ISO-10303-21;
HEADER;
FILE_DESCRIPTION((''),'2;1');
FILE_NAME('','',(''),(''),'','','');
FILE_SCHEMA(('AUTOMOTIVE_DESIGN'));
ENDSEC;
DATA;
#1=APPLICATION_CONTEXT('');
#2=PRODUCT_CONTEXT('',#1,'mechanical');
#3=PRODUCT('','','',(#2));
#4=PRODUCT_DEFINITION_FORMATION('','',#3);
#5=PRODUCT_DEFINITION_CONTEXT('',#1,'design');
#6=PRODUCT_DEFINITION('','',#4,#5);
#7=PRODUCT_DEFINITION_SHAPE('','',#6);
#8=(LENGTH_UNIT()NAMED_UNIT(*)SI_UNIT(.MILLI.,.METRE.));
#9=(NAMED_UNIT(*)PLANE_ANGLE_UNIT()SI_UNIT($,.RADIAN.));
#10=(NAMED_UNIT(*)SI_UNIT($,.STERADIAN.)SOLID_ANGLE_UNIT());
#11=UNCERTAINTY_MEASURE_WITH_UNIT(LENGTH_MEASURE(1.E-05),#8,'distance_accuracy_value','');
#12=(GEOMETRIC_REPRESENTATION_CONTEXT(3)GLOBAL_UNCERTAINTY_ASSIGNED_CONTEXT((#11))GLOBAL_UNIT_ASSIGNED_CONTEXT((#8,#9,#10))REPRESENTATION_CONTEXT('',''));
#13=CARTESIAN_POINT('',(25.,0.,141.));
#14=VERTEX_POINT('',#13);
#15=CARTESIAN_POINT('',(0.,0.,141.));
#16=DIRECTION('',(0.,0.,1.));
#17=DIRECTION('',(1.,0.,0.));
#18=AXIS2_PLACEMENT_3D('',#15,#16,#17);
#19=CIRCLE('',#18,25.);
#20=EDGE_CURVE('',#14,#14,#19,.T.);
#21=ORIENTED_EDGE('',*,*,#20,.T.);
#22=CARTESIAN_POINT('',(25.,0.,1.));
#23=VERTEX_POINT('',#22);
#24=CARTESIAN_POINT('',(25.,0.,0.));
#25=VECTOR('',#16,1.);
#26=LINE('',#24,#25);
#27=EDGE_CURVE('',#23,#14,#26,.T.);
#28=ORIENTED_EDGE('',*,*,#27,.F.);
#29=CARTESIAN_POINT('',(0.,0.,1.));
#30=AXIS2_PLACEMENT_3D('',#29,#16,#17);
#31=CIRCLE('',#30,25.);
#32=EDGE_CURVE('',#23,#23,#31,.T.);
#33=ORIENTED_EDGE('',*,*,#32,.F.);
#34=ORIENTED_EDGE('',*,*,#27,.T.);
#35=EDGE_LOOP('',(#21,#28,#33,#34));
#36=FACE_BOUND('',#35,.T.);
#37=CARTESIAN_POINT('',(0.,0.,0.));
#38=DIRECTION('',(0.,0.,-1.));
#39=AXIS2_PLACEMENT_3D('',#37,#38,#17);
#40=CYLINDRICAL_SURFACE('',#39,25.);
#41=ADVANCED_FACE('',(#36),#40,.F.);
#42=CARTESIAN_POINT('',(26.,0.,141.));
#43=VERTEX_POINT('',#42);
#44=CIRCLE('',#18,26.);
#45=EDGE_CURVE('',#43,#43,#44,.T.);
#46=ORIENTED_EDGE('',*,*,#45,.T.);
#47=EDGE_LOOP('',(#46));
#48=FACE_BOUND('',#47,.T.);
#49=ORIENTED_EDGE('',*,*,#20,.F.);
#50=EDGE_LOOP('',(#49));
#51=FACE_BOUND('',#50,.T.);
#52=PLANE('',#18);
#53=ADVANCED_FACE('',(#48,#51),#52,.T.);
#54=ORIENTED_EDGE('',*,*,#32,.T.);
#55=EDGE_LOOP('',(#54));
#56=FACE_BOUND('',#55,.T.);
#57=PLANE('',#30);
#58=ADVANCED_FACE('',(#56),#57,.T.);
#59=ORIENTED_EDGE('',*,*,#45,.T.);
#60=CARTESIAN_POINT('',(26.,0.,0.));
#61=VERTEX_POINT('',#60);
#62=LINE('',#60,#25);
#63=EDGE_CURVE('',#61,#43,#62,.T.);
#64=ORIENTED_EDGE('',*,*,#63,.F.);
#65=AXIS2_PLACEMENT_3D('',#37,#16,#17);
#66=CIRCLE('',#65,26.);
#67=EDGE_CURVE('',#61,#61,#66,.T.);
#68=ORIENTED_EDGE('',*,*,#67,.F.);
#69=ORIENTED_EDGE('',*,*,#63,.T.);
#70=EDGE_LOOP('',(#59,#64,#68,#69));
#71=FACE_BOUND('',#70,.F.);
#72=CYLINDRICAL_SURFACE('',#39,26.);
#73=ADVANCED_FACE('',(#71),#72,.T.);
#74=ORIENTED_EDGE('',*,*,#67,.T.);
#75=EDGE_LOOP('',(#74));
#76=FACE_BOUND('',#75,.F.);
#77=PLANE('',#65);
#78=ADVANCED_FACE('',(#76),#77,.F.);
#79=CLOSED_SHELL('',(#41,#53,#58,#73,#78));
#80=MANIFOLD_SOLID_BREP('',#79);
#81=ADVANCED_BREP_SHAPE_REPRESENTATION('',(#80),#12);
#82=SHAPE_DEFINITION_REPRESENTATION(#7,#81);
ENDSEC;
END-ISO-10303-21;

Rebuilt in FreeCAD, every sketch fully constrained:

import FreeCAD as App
import Part
import Sketcher
Q = App.Units.Quantity

doc = App.newDocument("Part")
body = doc.addObject("PartDesign::Body", "Body")

# Sketch on XY plane
sketch1 = body.newObject("Sketcher::SketchObject", "Sketch")
sketch1.AttachmentSupport = (doc.getObject("XY_Plane"), [""])
sketch1.MapMode = "FlatFace"
sketch1.addGeometry(Part.Circle(App.Vector(0, 0, 0), App.Vector(0, 0, 1), 25), False)
sketch1.addConstraint([
    Sketcher.Constraint("Coincident", 0, 3, -1, 1),
    Sketcher.Constraint("Diameter", 0, Q("50 mm")),
])
pad1 = body.newObject("PartDesign::Pad", "Pad")
pad1.Profile = sketch1
pad1.Length = 1

# Sketch on XY plane
sketch2 = body.newObject("Sketcher::SketchObject", "Sketch001")
sketch2.AttachmentSupport = (doc.getObject("XY_Plane"), [""])
sketch2.MapMode = "FlatFace"
sketch2.addGeometry([
    Part.Circle(App.Vector(0, 0, 0), App.Vector(0, 0, 1), 26),
    Part.Circle(App.Vector(0, 0, 0), App.Vector(0, 0, 1), 25),
], False)
sketch2.addConstraint([
    Sketcher.Constraint("Coincident", 0, 3, -1, 1),
    Sketcher.Constraint("Coincident", 1, 3, -1, 1),
    Sketcher.Constraint("Diameter", 0, Q("52 mm")),
    Sketcher.Constraint("Diameter", 1, Q("50 mm")),
])
pad2 = body.newObject("PartDesign::Pad", "Pad001")
pad2.Profile = sketch2
pad2.Length = 141

doc.recompute()
